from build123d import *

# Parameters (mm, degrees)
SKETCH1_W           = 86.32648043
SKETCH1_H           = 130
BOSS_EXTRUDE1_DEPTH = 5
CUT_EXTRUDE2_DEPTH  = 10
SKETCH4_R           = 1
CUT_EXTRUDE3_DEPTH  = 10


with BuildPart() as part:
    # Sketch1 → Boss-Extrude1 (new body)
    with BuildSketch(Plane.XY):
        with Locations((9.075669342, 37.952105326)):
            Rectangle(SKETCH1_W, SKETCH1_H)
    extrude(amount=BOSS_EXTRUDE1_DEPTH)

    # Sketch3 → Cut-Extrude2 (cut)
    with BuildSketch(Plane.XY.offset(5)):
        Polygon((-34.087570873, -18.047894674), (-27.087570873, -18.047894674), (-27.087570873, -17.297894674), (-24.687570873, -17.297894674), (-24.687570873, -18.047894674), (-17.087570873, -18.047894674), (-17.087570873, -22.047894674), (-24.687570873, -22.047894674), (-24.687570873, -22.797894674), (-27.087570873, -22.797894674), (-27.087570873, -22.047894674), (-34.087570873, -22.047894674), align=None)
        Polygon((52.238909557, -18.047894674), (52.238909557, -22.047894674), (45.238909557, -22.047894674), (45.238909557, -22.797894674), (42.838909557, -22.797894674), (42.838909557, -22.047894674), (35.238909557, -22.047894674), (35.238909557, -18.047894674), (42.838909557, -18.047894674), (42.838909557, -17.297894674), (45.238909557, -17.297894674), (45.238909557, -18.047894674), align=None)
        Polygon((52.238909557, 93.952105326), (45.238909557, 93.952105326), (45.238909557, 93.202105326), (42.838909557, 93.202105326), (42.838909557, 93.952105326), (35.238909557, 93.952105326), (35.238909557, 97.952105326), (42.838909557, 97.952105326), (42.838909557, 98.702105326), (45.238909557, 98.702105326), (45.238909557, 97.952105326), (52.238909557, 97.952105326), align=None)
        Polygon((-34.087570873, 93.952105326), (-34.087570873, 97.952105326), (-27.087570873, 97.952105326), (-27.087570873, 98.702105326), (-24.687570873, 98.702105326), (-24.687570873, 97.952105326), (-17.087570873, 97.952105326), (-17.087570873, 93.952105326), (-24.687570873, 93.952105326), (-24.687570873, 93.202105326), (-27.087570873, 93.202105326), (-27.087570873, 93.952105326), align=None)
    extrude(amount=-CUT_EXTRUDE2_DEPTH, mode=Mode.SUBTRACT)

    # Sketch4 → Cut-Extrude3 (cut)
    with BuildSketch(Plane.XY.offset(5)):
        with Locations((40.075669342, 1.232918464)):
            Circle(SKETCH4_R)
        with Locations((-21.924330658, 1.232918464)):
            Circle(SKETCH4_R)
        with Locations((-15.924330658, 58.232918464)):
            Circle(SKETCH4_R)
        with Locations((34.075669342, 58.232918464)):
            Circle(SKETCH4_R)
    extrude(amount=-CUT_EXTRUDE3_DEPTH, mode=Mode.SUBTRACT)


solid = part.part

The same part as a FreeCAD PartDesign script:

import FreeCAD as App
import Part
import Sketcher
from FreeCAD import Vector
Q = App.Units.Quantity

doc = App.newDocument("Part")
body = doc.addObject("PartDesign::Body", "Body")

# Sketch on XY plane
sketch1 = body.newObject("Sketcher::SketchObject", "Sketch")
sketch1.AttachmentSupport = (doc.getObject("XY_Plane"), [""])
sketch1.MapMode = "FlatFace"
sketch1.addGeometry(Part.LineSegment(Vector(-34.087571, 102.952105, 0), Vector(-34.087571, -27.047895, 0)), False)
sketch1.addGeometry(Part.LineSegment(Vector(-34.087571, -27.047895, 0), Vector(52.23891, -27.047895, 0)), False)
sketch1.addGeometry(Part.LineSegment(Vector(52.23891, -27.047895, 0), Vector(52.23891, 102.952105, 0)), False)
sketch1.addGeometry(Part.LineSegment(Vector(52.23891, 102.952105, 0), Vector(-34.087571, 102.952105, 0)), False)
sketch1.addConstraint(Sketcher.Constraint("Coincident", 0, 2, 1, 1))
sketch1.addConstraint(Sketcher.Constraint("Coincident", 1, 2, 2, 1))
sketch1.addConstraint(Sketcher.Constraint("Coincident", 2, 2, 3, 1))
sketch1.addConstraint(Sketcher.Constraint("Coincident", 3, 2, 0, 1))
sketch1.addConstraint(Sketcher.Constraint("Vertical", 0))
sketch1.addConstraint(Sketcher.Constraint("Horizontal", 1))
sketch1.addConstraint(Sketcher.Constraint("Vertical", 2))
sketch1.addConstraint(Sketcher.Constraint("Horizontal", 3))
sketch1.addConstraint(Sketcher.Constraint("DistanceY", 0, 2, 0, 1, Q("130 mm")))
sketch1.addConstraint(Sketcher.Constraint("DistanceX", 1, 1, 1, 2, Q("86.32648 mm")))
sketch1.addConstraint(Sketcher.Constraint("DistanceX", 0, 2, -1, 1, Q("34.087571 mm")))
sketch1.addConstraint(Sketcher.Constraint("DistanceY", 0, 2, -1, 1, Q("27.047895 mm")))
pad1 = body.newObject("PartDesign::Pad", "Pad")
pad1.Profile = sketch1
pad1.Length = 5

# Sketch on XY plane
sketch2 = body.newObject("Sketcher::SketchObject", "Sketch001")
sketch2.AttachmentSupport = (doc.getObject("XY_Plane"), [""])
sketch2.MapMode = "FlatFace"
sketch2.AttachmentOffset = App.Placement(Vector(0, 0, 5), App.Rotation())
sketch2.addGeometry(Part.LineSegment(Vector(-27.087571, -18.047895, 0), Vector(-34.087571, -18.047895, 0)), False)
sketch2.addGeometry(Part.LineSegment(Vector(-34.087571, -18.047895, 0), Vector(-34.087571, -22.047895, 0)), False)
sketch2.addGeometry(Part.LineSegment(Vector(-34.087571, -22.047895, 0), Vector(-27.087571, -22.047895, 0)), False)
sketch2.addGeometry(Part.LineSegment(Vector(-27.087571, -22.047895, 0), Vector(-27.087571, -22.797895, 0)), False)
sketch2.addGeometry(Part.LineSegment(Vector(-27.087571, -22.797895, 0), Vector(-24.687571, -22.797895, 0)), False)
sketch2.addGeometry(Part.LineSegment(Vector(-24.687571, -22.797895, 0), Vector(-24.687571, -22.047895, 0)), False)
sketch2.addGeometry(Part.LineSegment(Vector(-24.687571, -22.047895, 0), Vector(-17.087571, -22.047895, 0)), False)
sketch2.addGeometry(Part.LineSegment(Vector(-17.087571, -22.047895, 0), Vector(-17.087571, -18.047895, 0)), False)
sketch2.addGeometry(Part.LineSegment(Vector(-17.087571, -18.047895, 0), Vector(-24.687571, -18.047895, 0)), False)
sketch2.addGeometry(Part.LineSegment(Vector(-24.687571, -18.047895, 0), Vector(-24.687571, -17.297895, 0)), False)
sketch2.addGeometry(Part.LineSegment(Vector(-24.687571, -17.297895, 0), Vector(-27.087571, -17.297895, 0)), False)
sketch2.addGeometry(Part.LineSegment(Vector(-27.087571, -17.297895, 0), Vector(-27.087571, -18.047895, 0)), False)
sketch2.addGeometry(Part.LineSegment(Vector(52.23891, -22.047895, 0), Vector(52.23891, -18.047895, 0)), False)
sketch2.addGeometry(Part.LineSegment(Vector(52.23891, -18.047895, 0), Vector(45.23891, -18.047895, 0)), False)
sketch2.addGeometry(Part.LineSegment(Vector(45.23891, -18.047895, 0), Vector(45.23891, -17.297895, 0)), False)
sketch2.addGeometry(Part.LineSegment(Vector(45.23891, -17.297895, 0), Vector(42.83891, -17.297895, 0)), False)
sketch2.addGeometry(Part.LineSegment(Vector(42.83891, -17.297895, 0), Vector(42.83891, -18.047895, 0)), False)
sketch2.addGeometry(Part.LineSegment(Vector(42.83891, -18.047895, 0), Vector(35.23891, -18.047895, 0)), False)
sketch2.addGeometry(Part.LineSegment(Vector(35.23891, -18.047895, 0), Vector(35.23891, -22.047895, 0)), False)
sketch2.addGeometry(Part.LineSegment(Vector(35.23891, -22.047895, 0), Vector(42.83891, -22.047895, 0)), False)
sketch2.addGeometry(Part.LineSegment(Vector(42.83891, -22.047895, 0), Vector(42.83891, -22.797895, 0)), False)
sketch2.addGeometry(Part.LineSegment(Vector(42.83891, -22.797895, 0), Vector(45.23891, -22.797895, 0)), False)
sketch2.addGeometry(Part.LineSegment(Vector(45.23891, -22.797895, 0), Vector(45.23891, -22.047895, 0)), False)
sketch2.addGeometry(Part.LineSegment(Vector(45.23891, -22.047895, 0), Vector(52.23891, -22.047895, 0)), False)
sketch2.addGeometry(Part.LineSegment(Vector(45.23891, 93.952105, 0), Vector(52.23891, 93.952105, 0)), False)
sketch2.addGeometry(Part.LineSegment(Vector(52.23891, 93.952105, 0), Vector(52.23891, 97.952105, 0)), False)
sketch2.addGeometry(Part.LineSegment(Vector(52.23891, 97.952105, 0), Vector(45.23891, 97.952105, 0)), False)
sketch2.addGeometry(Part.LineSegment(Vector(45.23891, 97.952105, 0), Vector(45.23891, 98.702105, 0)), False)
sketch2.addGeometry(Part.LineSegment(Vector(45.23891, 98.702105, 0), Vector(42.83891, 98.702105, 0)), False)
sketch2.addGeometry(Part.LineSegment(Vector(42.83891, 98.702105, 0), Vector(42.83891, 97.952105, 0)), False)
sketch2.addGeometry(Part.LineSegment(Vector(42.83891, 97.952105, 0), Vector(35.23891, 97.952105, 0)), False)
sketch2.addGeometry(Part.LineSegment(Vector(35.23891, 97.952105, 0), Vector(35.23891, 93.952105, 0)), False)
sketch2.addGeometry(Part.LineSegment(Vector(35.23891, 93.952105, 0), Vector(42.83891, 93.952105, 0)), False)
sketch2.addGeometry(Part.LineSegment(Vector(42.83891, 93.952105, 0), Vector(42.83891, 93.202105, 0)), False)
sketch2.addGeometry(Part.LineSegment(Vector(42.83891, 93.202105, 0), Vector(45.23891, 93.202105, 0)), False)
sketch2.addGeometry(Part.LineSegment(Vector(45.23891, 93.202105, 0), Vector(45.23891, 93.952105, 0)), False)
sketch2.addGeometry(Part.LineSegment(Vector(-34.087571, 97.952105, 0), Vector(-34.087571, 93.952105, 0)), False)
sketch2.addGeometry(Part.LineSegment(Vector(-34.087571, 93.952105, 0), Vector(-27.087571, 93.952105, 0)), False)
sketch2.addGeometry(Part.LineSegment(Vector(-27.087571, 93.952105, 0), Vector(-27.087571, 93.202105, 0)), False)
sketch2.addGeometry(Part.LineSegment(Vector(-27.087571, 93.202105, 0), Vector(-24.687571, 93.202105, 0)), False)
sketch2.addGeometry(Part.LineSegment(Vector(-24.687571, 93.202105, 0), Vector(-24.687571, 93.952105, 0)), False)
sketch2.addGeometry(Part.LineSegment(Vector(-24.687571, 93.952105, 0), Vector(-17.087571, 93.952105, 0)), False)
sketch2.addGeometry(Part.LineSegment(Vector(-17.087571, 93.952105, 0), Vector(-17.087571, 97.952105, 0)), False)
sketch2.addGeometry(Part.LineSegment(Vector(-17.087571, 97.952105, 0), Vector(-24.687571, 97.952105, 0)), False)
sketch2.addGeometry(Part.LineSegment(Vector(-24.687571, 97.952105, 0), Vector(-24.687571, 98.702105, 0)), False)
sketch2.addGeometry(Part.LineSegment(Vector(-24.687571, 98.702105, 0), Vector(-27.087571, 98.702105, 0)), False)
sketch2.addGeometry(Part.LineSegment(Vector(-27.087571, 98.702105, 0), Vector(-27.087571, 97.952105, 0)), False)
sketch2.addGeometry(Part.LineSegment(Vector(-27.087571, 97.952105, 0), Vector(-34.087571, 97.952105, 0)), False)
sketch2.addConstraint(Sketcher.Constraint("Coincident", 0, 2, 1, 1))
sketch2.addConstraint(Sketcher.Constraint("Coincident", 1, 2, 2, 1))
sketch2.addConstraint(Sketcher.Constraint("Coincident", 2, 2, 3, 1))
sketch2.addConstraint(Sketcher.Constraint("Coincident", 3, 2, 4, 1))
sketch2.addConstraint(Sketcher.Constraint("Coincident", 4, 2, 5, 1))
sketch2.addConstraint(Sketcher.Constraint("Coincident", 5, 2, 6, 1))
sketch2.addConstraint(Sketcher.Constraint("Coincident", 6, 2, 7, 1))
sketch2.addConstraint(Sketcher.Constraint("Coincident", 7, 2, 8, 1))
sketch2.addConstraint(Sketcher.Constraint("Coincident", 8, 2, 9, 1))
sketch2.addConstraint(Sketcher.Constraint("Coincident", 9, 2, 10, 1))
sketch2.addConstraint(Sketcher.Constraint("Coincident", 10, 2, 11, 1))
sketch2.addConstraint(Sketcher.Constraint("Coincident", 11, 2, 0, 1))
sketch2.addConstraint(Sketcher.Constraint("Coincident", 12, 2, 13, 1))
sketch2.addConstraint(Sketcher.Constraint("Coincident", 13, 2, 14, 1))
sketch2.addConstraint(Sketcher.Constraint("Coincident", 14, 2, 15, 1))
sketch2.addConstraint(Sketcher.Constraint("Coincident", 15, 2, 16, 1))
sketch2.addConstraint(Sketcher.Constraint("Coincident", 16, 2, 17, 1))
sketch2.addConstraint(Sketcher.Constraint("Coincident", 17, 2, 18, 1))
sketch2.addConstraint(Sketcher.Constraint("Coincident", 18, 2, 19, 1))
sketch2.addConstraint(Sketcher.Constraint("Coincident", 19, 2, 20, 1))
sketch2.addConstraint(Sketcher.Constraint("Coincident", 20, 2, 21, 1))
sketch2.addConstraint(Sketcher.Constraint("Coincident", 21, 2, 22, 1))
sketch2.addConstraint(Sketcher.Constraint("Coincident", 22, 2, 23, 1))
sketch2.addConstraint(Sketcher.Constraint("Coincident", 23, 2, 12, 1))
sketch2.addConstraint(Sketcher.Constraint("Coincident", 24, 2, 25, 1))
sketch2.addConstraint(Sketcher.Constraint("Coincident", 25, 2, 26, 1))
sketch2.addConstraint(Sketcher.Constraint("Coincident", 26, 2, 27, 1))
sketch2.addConstraint(Sketcher.Constraint("Coincident", 27, 2, 28, 1))
sketch2.addConstraint(Sketcher.Constraint("Coincident", 28, 2, 29, 1))
sketch2.addConstraint(Sketcher.Constraint("Coincident", 29, 2, 30, 1))
sketch2.addConstraint(Sketcher.Constraint("Coincident", 30, 2, 31, 1))
sketch2.addConstraint(Sketcher.Constraint("Coincident", 31, 2, 32, 1))
sketch2.addConstraint(Sketcher.Constraint("Coincident", 32, 2, 33, 1))
sketch2.addConstraint(Sketcher.Constraint("Coincident", 33, 2, 34, 1))
sketch2.addConstraint(Sketcher.Constraint("Coincident", 34, 2, 35, 1))
sketch2.addConstraint(Sketcher.Constraint("Coincident", 35, 2, 24, 1))
sketch2.addConstraint(Sketcher.Constraint("Coincident", 36, 2, 37, 1))
sketch2.addConstraint(Sketcher.Constraint("Coincident", 37, 2, 38, 1))
sketch2.addConstraint(Sketcher.Constraint("Coincident", 38, 2, 39, 1))
sketch2.addConstraint(Sketcher.Constraint("Coincident", 39, 2, 40, 1))
sketch2.addConstraint(Sketcher.Constraint("Coincident", 40, 2, 41, 1))
sketch2.addConstraint(Sketcher.Constraint("Coincident", 41, 2, 42, 1))
sketch2.addConstraint(Sketcher.Constraint("Coincident", 42, 2, 43, 1))
sketch2.addConstraint(Sketcher.Constraint("Coincident", 43, 2, 44, 1))
sketch2.addConstraint(Sketcher.Constraint("Coincident", 44, 2, 45, 1))
sketch2.addConstraint(Sketcher.Constraint("Coincident", 45, 2, 46, 1))
sketch2.addConstraint(Sketcher.Constraint("Coincident", 46, 2, 47, 1))
sketch2.addConstraint(Sketcher.Constraint("Coincident", 47, 2, 36, 1))
sketch2.addConstraint(Sketcher.Constraint("Horizontal", 0))
sketch2.addConstraint(Sketcher.Constraint("Vertical", 1))
sketch2.addConstraint(Sketcher.Constraint("Horizontal", 2))
sketch2.addConstraint(Sketcher.Constraint("Vertical", 3))
sketch2.addConstraint(Sketcher.Constraint("Horizontal", 4))
sketch2.addConstraint(Sketcher.Constraint("Vertical", 5))
sketch2.addConstraint(Sketcher.Constraint("Horizontal", 6))
sketch2.addConstraint(Sketcher.Constraint("Vertical", 7))
sketch2.addConstraint(Sketcher.Constraint("Horizontal", 8))
sketch2.addConstraint(Sketcher.Constraint("Vertical", 9))
sketch2.addConstraint(Sketcher.Constraint("Horizontal", 10))
sketch2.addConstraint(Sketcher.Constraint("Vertical", 11))
sketch2.addConstraint(Sketcher.Constraint("Vertical", 12))
sketch2.addConstraint(Sketcher.Constraint("Horizontal", 13))
sketch2.addConstraint(Sketcher.Constraint("Vertical", 14))
sketch2.addConstraint(Sketcher.Constraint("Horizontal", 15))
sketch2.addConstraint(Sketcher.Constraint("Vertical", 16))
sketch2.addConstraint(Sketcher.Constraint("Horizontal", 17))
sketch2.addConstraint(Sketcher.Constraint("Vertical", 18))
sketch2.addConstraint(Sketcher.Constraint("Horizontal", 19))
sketch2.addConstraint(Sketcher.Constraint("Vertical", 20))
sketch2.addConstraint(Sketcher.Constraint("Horizontal", 21))
sketch2.addConstraint(Sketcher.Constraint("Vertical", 22))
sketch2.addConstraint(Sketcher.Constraint("Horizontal", 23))
sketch2.addConstraint(Sketcher.Constraint("Horizontal", 24))
sketch2.addConstraint(Sketcher.Constraint("Vertical", 25))
sketch2.addConstraint(Sketcher.Constraint("Horizontal", 26))
sketch2.addConstraint(Sketcher.Constraint("Vertical", 27))
sketch2.addConstraint(Sketcher.Constraint("Horizontal", 28))
sketch2.addConstraint(Sketcher.Constraint("Vertical", 29))
sketch2.addConstraint(Sketcher.Constraint("Horizontal", 30))
sketch2.addConstraint(Sketcher.Constraint("Vertical", 31))
sketch2.addConstraint(Sketcher.Constraint("Horizontal", 32))
sketch2.addConstraint(Sketcher.Constraint("Vertical", 33))
sketch2.addConstraint(Sketcher.Constraint("Horizontal", 34))
sketch2.addConstraint(Sketcher.Constraint("Vertical", 35))
sketch2.addConstraint(Sketcher.Constraint("Vertical", 36))
sketch2.addConstraint(Sketcher.Constraint("Horizontal", 37))
sketch2.addConstraint(Sketcher.Constraint("Vertical", 38))
sketch2.addConstraint(Sketcher.Constraint("Horizontal", 39))
sketch2.addConstraint(Sketcher.Constraint("Vertical", 40))
sketch2.addConstraint(Sketcher.Constraint("Horizontal", 41))
sketch2.addConstraint(Sketcher.Constraint("Vertical", 42))
sketch2.addConstraint(Sketcher.Constraint("Horizontal", 43))
sketch2.addConstraint(Sketcher.Constraint("Vertical", 44))
sketch2.addConstraint(Sketcher.Constraint("Horizontal", 45))
sketch2.addConstraint(Sketcher.Constraint("Vertical", 46))
sketch2.addConstraint(Sketcher.Constraint("Horizontal", 47))
sketch2.addConstraint(Sketcher.Constraint("Horizontal", 2, 2, 5, 2))
sketch2.addConstraint(Sketcher.Constraint("Horizontal", 0, 2, 7, 2))
sketch2.addConstraint(Sketcher.Constraint("Horizontal", 11, 2, 12, 2))
sketch2.addConstraint(Sketcher.Constraint("Horizontal", 10, 2, 14, 2))
sketch2.addConstraint(Sketcher.Constraint("Horizontal", 13, 2, 16, 2))
sketch2.addConstraint(Sketcher.Constraint("Horizontal", 6, 2, 18, 2))
sketch2.addConstraint(Sketcher.Constraint("Horizontal", 4, 2, 20, 2))
sketch2.addConstraint(Sketcher.Constraint("Horizontal", 19, 2, 22, 2))
sketch2.addConstraint(Sketcher.Constraint("Horizontal", 26, 2, 29, 2))
sketch2.addConstraint(Sketcher.Constraint("Horizontal", 24, 2, 31, 2))
sketch2.addConstraint(Sketcher.Constraint("Horizontal", 35, 2, 36, 2))
sketch2.addConstraint(Sketcher.Constraint("Horizontal", 34, 2, 38, 2))
sketch2.addConstraint(Sketcher.Constraint("Horizontal", 37, 2, 40, 2))
sketch2.addConstraint(Sketcher.Constraint("Horizontal", 30, 2, 42, 2))
sketch2.addConstraint(Sketcher.Constraint("Horizontal", 28, 2, 44, 2))
sketch2.addConstraint(Sketcher.Constraint("Horizontal", 43, 2, 46, 2))
sketch2.addConstraint(Sketcher.Constraint("Vertical", 5, 2, 8, 2))
sketch2.addConstraint(Sketcher.Constraint("Vertical", 3, 2, 10, 2))
sketch2.addConstraint(Sketcher.Constraint("Vertical", 16, 2, 19, 2))
sketch2.addConstraint(Sketcher.Constraint("Vertical", 14, 2, 21, 2))
sketch2.addConstraint(Sketcher.Constraint("Vertical", 23, 2, 24, 2))
sketch2.addConstraint(Sketcher.Constraint("Vertical", 22, 2, 26, 2))
sketch2.addConstraint(Sketcher.Constraint("Vertical", 20, 2, 28, 2))
sketch2.addConstraint(Sketcher.Constraint("Vertical", 18, 2, 30, 2))
sketch2.addConstraint(Sketcher.Constraint("Vertical", 29, 2, 32, 2))
sketch2.addConstraint(Sketcher.Constraint("Vertical", 27, 2, 34, 2))
sketch2.addConstraint(Sketcher.Constraint("Vertical", 1, 2, 36, 2))
sketch2.addConstraint(Sketcher.Constraint("Vertical", 11, 2, 37, 2))
sketch2.addConstraint(Sketcher.Constraint("Vertical", 9, 2, 39, 2))
sketch2.addConstraint(Sketcher.Constraint("Vertical", 7, 2, 41, 2))
sketch2.addConstraint(Sketcher.Constraint("Vertical", 40, 2, 43, 2))
sketch2.addConstraint(Sketcher.Constraint("Vertical", 38, 2, 45, 2))
sketch2.addConstraint(Sketcher.Constraint("Equal", 2, 13))
sketch2.addConstraint(Sketcher.Constraint("Equal", 10, 15))
sketch2.addConstraint(Sketcher.Constraint("Equal", 8, 17))
sketch2.addConstraint(Sketcher.Constraint("Equal", 5, 9))
sketch2.addConstraint(Sketcher.Constraint("Equal", 18, 25))
sketch2.addConstraint(Sketcher.Constraint("Equal", 22, 27))
sketch2.addConstraint(Sketcher.Constraint("Equal", 29, 33))
sketch2.addConstraint(Sketcher.Constraint("DistanceX", 0, 2, 0, 1, Q("7 mm")))
sketch2.addConstraint(Sketcher.Constraint("DistanceY", 1, 2, 1, 1, Q("4 mm")))
sketch2.addConstraint(Sketcher.Constraint("DistanceX", 4, 1, 4, 2, Q("2.4 mm")))
sketch2.addConstraint(Sketcher.Constraint("DistanceX", 6, 1, 6, 2, Q("7.6 mm")))
sketch2.addConstraint(Sketcher.Constraint("DistanceY", 12, 2, 24, 2, Q("112 mm")))
sketch2.addConstraint(Sketcher.Constraint("DistanceY", 3, 2, 3, 1, Q("0.75 mm")))
sketch2.addConstraint(Sketcher.Constraint("DistanceX", 0, 2, -1, 1, Q("34.087571 mm")))
sketch2.addConstraint(Sketcher.Constraint("DistanceX", -1, 1, 12, 2, Q("52.23891 mm")))
sketch2.addConstraint(Sketcher.Constraint("DistanceY", 0, 2, -1, 1, Q("18.047895 mm")))
pocket1 = body.newObject("PartDesign::Pocket", "Pocket")
pocket1.Profile = sketch2
pocket1.Length = 10

# Sketch on XY plane
sketch3 = body.newObject("Sketcher::SketchObject", "Sketch002")
sketch3.AttachmentSupport = (doc.getObject("XY_Plane"), [""])
sketch3.MapMode = "FlatFace"
sketch3.AttachmentOffset = App.Placement(Vector(0, 0, 5), App.Rotation())
sketch3.addGeometry(Part.Circle(Vector(40.075669, 1.232918, 0), Vector(0, 0, 1), 1), False)
sketch3.addGeometry(Part.Circle(Vector(-21.924331, 1.232918, 0), Vector(0, 0, 1), 1), False)
sketch3.addGeometry(Part.Circle(Vector(-15.924331, 58.232918, 0), Vector(0, 0, 1), 1), False)
sketch3.addGeometry(Part.Circle(Vector(34.075669, 58.232918, 0), Vector(0, 0, 1), 1), False)
sketch3.addConstraint(Sketcher.Constraint("Equal", 0, 1))
sketch3.addConstraint(Sketcher.Constraint("Equal", 1, 2))
sketch3.addConstraint(Sketcher.Constraint("Equal", 2, 3))
sketch3.addConstraint(Sketcher.Constraint("Horizontal", 0, 3, 1, 3))
sketch3.addConstraint(Sketcher.Constraint("Horizontal", 2, 3, 3, 3))
sketch3.addConstraint(Sketcher.Constraint("Diameter", 0, Q("2 mm")))
sketch3.addConstraint(Sketcher.Constraint("DistanceX", 1, 3, 0, 3, Q("62 mm")))
sketch3.addConstraint(Sketcher.Constraint("DistanceX", 1, 3, 2, 3, Q("6 mm")))
sketch3.addConstraint(Sketcher.Constraint("DistanceY", 1, 3, 2, 3, Q("57 mm")))
sketch3.addConstraint(Sketcher.Constraint("DistanceX", 2, 3, 3, 3, Q("50 mm")))
sketch3.addConstraint(Sketcher.Constraint("DistanceX", -1, 1, 0, 3, Q("40.075669 mm")))
sketch3.addConstraint(Sketcher.Constraint("DistanceY", -1, 1, 0, 3, Q("1.232918 mm")))
pocket2 = body.newObject("PartDesign::Pocket", "Pocket001")
pocket2.Profile = sketch3
pocket2.Length = 10

doc.recompute()
